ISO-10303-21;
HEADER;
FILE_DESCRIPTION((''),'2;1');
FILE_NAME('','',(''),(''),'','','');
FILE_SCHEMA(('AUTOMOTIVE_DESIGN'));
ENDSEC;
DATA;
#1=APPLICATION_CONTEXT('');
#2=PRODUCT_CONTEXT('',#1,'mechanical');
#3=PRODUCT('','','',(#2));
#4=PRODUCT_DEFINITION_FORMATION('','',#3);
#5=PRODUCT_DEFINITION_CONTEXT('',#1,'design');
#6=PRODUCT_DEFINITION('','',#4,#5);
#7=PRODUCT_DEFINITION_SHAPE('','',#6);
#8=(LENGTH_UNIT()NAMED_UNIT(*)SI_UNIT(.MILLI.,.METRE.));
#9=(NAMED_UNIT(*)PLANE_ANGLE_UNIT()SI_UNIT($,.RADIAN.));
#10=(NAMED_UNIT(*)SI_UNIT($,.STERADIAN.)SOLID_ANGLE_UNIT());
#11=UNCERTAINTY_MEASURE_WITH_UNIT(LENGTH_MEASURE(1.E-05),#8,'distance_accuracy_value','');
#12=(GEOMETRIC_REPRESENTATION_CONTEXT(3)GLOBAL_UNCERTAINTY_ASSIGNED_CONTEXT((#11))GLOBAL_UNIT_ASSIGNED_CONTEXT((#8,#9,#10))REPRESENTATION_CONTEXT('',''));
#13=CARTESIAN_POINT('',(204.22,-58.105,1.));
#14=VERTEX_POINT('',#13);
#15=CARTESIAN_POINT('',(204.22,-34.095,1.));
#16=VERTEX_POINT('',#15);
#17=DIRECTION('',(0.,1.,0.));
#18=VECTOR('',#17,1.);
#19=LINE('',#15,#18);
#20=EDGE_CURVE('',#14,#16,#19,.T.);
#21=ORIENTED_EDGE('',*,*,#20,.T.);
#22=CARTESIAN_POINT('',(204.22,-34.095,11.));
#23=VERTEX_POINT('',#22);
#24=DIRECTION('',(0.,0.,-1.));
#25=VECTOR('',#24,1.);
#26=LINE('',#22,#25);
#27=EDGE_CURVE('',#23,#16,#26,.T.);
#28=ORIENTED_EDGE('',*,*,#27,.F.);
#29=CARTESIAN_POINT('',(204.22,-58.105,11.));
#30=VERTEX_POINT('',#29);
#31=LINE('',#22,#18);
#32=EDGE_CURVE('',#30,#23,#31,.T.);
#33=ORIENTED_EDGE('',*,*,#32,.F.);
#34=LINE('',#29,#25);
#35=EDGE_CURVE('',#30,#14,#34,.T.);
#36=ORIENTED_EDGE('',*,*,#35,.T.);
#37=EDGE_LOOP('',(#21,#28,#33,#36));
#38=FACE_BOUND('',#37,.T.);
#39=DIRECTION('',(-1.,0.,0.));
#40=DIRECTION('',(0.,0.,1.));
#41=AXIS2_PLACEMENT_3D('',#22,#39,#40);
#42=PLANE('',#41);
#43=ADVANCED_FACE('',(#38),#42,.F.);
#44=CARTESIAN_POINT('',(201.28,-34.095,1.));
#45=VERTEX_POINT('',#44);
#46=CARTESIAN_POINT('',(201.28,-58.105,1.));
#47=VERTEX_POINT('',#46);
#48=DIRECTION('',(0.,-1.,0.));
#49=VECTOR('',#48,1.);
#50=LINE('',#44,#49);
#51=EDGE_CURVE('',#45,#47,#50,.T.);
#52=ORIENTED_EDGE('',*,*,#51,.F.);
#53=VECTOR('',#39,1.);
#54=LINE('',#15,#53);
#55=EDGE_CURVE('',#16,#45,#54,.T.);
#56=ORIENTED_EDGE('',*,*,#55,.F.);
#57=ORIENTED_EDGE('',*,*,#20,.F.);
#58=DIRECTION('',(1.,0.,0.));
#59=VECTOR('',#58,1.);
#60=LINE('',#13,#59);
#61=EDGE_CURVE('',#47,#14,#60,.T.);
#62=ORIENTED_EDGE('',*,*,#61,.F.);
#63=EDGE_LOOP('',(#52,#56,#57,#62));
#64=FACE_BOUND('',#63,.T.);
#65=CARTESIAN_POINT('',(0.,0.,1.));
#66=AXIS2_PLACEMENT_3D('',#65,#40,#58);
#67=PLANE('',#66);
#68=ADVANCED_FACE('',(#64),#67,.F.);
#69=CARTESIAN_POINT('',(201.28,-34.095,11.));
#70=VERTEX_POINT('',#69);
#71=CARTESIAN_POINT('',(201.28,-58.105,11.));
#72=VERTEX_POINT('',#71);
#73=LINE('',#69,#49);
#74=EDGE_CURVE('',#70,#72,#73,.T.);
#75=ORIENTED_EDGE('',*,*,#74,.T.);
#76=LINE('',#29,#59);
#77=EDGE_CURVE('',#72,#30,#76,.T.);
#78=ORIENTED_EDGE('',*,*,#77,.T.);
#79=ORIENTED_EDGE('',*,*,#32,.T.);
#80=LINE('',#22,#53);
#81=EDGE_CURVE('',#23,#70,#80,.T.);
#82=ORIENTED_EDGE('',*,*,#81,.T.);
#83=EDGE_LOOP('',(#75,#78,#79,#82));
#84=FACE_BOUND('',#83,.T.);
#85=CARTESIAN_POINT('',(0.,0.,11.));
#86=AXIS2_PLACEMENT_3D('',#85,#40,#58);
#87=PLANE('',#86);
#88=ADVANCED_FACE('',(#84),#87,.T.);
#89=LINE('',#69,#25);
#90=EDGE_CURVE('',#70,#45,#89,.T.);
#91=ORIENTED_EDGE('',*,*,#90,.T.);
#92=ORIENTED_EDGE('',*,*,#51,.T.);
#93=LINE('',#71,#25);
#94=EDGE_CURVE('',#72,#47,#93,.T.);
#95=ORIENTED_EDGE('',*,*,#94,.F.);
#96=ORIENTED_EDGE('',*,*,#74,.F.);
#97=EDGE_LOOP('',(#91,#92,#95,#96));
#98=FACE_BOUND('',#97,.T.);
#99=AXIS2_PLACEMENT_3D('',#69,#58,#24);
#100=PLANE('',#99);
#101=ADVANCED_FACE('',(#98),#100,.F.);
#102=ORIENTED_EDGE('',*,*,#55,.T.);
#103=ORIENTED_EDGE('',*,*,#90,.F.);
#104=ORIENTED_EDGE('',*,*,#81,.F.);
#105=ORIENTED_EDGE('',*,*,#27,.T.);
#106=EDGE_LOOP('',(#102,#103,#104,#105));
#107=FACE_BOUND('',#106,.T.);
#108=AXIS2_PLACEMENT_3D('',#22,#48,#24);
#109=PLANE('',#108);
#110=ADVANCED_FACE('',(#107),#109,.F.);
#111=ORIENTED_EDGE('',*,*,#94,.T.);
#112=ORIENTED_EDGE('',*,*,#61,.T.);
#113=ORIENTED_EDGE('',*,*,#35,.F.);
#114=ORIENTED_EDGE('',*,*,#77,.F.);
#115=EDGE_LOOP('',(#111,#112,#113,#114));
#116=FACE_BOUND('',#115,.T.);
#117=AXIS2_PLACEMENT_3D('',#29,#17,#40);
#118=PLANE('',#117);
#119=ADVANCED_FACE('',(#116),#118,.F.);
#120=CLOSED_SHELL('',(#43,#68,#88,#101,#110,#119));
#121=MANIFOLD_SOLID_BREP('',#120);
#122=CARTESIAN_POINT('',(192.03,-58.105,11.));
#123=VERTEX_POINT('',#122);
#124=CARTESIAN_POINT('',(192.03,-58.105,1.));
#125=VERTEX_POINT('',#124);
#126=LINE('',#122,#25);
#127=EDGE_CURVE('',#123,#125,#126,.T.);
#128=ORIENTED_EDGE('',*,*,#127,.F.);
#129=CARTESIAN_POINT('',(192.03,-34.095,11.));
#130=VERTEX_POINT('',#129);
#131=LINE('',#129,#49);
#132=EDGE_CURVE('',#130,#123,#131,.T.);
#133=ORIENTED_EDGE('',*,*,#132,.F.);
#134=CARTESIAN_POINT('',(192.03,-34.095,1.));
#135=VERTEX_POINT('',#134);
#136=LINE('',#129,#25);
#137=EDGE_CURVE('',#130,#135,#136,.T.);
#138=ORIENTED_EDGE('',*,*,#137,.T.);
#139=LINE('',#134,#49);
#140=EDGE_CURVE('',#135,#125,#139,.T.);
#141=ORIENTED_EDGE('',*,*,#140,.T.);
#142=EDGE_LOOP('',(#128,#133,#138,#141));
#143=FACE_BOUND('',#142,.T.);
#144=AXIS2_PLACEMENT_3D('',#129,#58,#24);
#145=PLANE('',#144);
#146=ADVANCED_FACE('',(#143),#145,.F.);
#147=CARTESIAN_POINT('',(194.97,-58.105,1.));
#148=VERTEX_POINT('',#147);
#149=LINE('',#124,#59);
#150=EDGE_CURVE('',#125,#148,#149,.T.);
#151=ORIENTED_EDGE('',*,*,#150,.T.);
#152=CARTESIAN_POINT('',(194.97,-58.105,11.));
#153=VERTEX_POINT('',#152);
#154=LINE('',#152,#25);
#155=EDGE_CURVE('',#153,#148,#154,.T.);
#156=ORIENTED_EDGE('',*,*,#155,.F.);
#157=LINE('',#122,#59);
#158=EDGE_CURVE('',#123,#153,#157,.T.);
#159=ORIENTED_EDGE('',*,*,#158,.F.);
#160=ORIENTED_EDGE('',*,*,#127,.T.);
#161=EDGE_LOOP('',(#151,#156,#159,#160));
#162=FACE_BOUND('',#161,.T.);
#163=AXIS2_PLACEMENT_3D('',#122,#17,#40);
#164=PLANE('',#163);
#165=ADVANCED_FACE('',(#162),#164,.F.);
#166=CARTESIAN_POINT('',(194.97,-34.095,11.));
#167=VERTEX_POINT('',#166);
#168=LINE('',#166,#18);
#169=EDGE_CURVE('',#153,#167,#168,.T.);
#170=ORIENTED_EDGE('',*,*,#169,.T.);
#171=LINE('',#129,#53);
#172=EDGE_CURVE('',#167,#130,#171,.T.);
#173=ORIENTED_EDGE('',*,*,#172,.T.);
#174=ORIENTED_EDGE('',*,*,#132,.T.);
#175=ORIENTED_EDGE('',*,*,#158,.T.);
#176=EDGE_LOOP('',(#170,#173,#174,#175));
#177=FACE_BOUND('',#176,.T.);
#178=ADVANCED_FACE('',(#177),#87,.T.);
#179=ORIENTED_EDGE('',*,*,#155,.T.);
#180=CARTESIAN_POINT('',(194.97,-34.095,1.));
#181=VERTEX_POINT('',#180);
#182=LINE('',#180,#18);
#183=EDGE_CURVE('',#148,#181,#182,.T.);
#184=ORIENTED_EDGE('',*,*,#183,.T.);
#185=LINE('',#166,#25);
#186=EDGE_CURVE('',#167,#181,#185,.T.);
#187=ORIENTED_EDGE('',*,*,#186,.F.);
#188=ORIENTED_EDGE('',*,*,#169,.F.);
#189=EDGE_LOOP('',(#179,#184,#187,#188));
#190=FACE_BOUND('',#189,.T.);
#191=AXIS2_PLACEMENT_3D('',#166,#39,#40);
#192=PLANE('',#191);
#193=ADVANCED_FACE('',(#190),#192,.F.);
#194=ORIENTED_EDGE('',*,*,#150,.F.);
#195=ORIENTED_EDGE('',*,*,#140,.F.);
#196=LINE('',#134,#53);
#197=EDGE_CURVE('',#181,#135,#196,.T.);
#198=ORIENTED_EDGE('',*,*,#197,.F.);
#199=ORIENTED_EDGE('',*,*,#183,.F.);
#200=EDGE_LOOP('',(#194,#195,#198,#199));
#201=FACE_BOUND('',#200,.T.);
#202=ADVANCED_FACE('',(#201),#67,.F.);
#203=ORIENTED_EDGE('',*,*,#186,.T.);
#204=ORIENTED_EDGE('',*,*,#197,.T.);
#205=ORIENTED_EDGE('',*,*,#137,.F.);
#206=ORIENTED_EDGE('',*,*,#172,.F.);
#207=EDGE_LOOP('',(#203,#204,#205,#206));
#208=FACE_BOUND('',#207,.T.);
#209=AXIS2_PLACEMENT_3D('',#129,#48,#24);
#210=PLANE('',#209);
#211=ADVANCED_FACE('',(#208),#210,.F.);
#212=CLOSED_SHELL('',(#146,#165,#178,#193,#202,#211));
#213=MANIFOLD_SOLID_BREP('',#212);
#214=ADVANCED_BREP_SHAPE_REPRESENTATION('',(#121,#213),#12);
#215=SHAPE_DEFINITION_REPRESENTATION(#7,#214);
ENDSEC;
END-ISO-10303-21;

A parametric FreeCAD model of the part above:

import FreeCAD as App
import Part
import Sketcher
from FreeCAD import Vector
Q = App.Units.Quantity

doc = App.newDocument("Part")
body = doc.addObject("PartDesign::Body", "Body")

# Sketch on XY plane
sketch1 = body.newObject("Sketcher::SketchObject", "Sketch")
sketch1.AttachmentSupport = (doc.getObject("XY_Plane"), [""])
sketch1.MapMode = "FlatFace"
sketch1.AttachmentOffset = App.Placement(Vector(0, 0, 1), App.Rotation())
sketch1.addGeometry([
    Part.LineSegment(Vector(192, -34.1, 0), Vector(192, -58.1, 0)),
    Part.LineSegment(Vector(192, -58.1, 0), Vector(195, -58.1, 0)),
    Part.LineSegment(Vector(195, -58.1, 0), Vector(195, -34.1, 0)),
    Part.LineSegment(Vector(195, -34.1, 0), Vector(192, -34.1, 0)),
], False)
sketch1.addConstraint([
    Sketcher.Constraint("Coincident", 0, 2, 1, 1),
    Sketcher.Constraint("Coincident", 1, 2, 2, 1),
    Sketcher.Constraint("Coincident", 2, 2, 3, 1),
    Sketcher.Constraint("Coincident", 3, 2, 0, 1),
    Sketcher.Constraint("Vertical", 0),
    Sketcher.Constraint("Horizontal", 1),
    Sketcher.Constraint("Vertical", 2),
    Sketcher.Constraint("Horizontal", 3),
    Sketcher.Constraint("DistanceX", 1, 1, 1, 2, Q("2.94 mm")),
    Sketcher.Constraint("DistanceY", 0, 2, 0, 1, Q("24.01 mm")),
    Sketcher.Constraint("DistanceX", -1, 1, 0, 2, Q("192.03 mm")),
    Sketcher.Constraint("DistanceY", 0, 2, -1, 1, Q("58.105 mm")),
])
pad1 = body.newObject("PartDesign::Pad", "Pad")
pad1.Profile = sketch1
pad1.Length = 10
body2 = doc.addObject("PartDesign::Body", "Body001")

# Sketch on XY plane
sketch2 = body2.newObject("Sketcher::SketchObject", "Sketch001")
sketch2.AttachmentSupport = (doc.getObject("XY_Plane001"), [""])
sketch2.MapMode = "FlatFace"
sketch2.AttachmentOffset = App.Placement(Vector(0, 0, 1), App.Rotation())
sketch2.addGeometry([
    Part.LineSegment(Vector(201.3, -34.1, 0), Vector(201.3, -58.1, 0)),
    Part.LineSegment(Vector(201.3, -58.1, 0), Vector(204.2, -58.1, 0)),
    Part.LineSegment(Vector(204.2, -58.1, 0), Vector(204.2, -34.1, 0)),
    Part.LineSegment(Vector(204.2, -34.1, 0), Vector(201.3, -34.1, 0)),
], False)
sketch2.addConstraint([
    Sketcher.Constraint("Coincident", 0, 2, 1, 1),
    Sketcher.Constraint("Coincident", 1, 2, 2, 1),
    Sketcher.Constraint("Coincident", 2, 2, 3, 1),
    Sketcher.Constraint("Coincident", 3, 2, 0, 1),
    Sketcher.Constraint("Vertical", 0),
    Sketcher.Constraint("Horizontal", 1),
    Sketcher.Constraint("Vertical", 2),
    Sketcher.Constraint("Horizontal", 3),
    Sketcher.Constraint("DistanceX", 1, 1, 1, 2, Q("2.94 mm")),
    Sketcher.Constraint("DistanceY", 0, 2, 0, 1, Q("24.01 mm")),
    Sketcher.Constraint("DistanceX", -1, 1, 0, 2, Q("201.28 mm")),
    Sketcher.Constraint("DistanceY", 0, 2, -1, 1, Q("58.105 mm")),
])
pad2 = body2.newObject("PartDesign::Pad", "Pad001")
pad2.Profile = sketch2
pad2.Length = 10

doc.recompute()
